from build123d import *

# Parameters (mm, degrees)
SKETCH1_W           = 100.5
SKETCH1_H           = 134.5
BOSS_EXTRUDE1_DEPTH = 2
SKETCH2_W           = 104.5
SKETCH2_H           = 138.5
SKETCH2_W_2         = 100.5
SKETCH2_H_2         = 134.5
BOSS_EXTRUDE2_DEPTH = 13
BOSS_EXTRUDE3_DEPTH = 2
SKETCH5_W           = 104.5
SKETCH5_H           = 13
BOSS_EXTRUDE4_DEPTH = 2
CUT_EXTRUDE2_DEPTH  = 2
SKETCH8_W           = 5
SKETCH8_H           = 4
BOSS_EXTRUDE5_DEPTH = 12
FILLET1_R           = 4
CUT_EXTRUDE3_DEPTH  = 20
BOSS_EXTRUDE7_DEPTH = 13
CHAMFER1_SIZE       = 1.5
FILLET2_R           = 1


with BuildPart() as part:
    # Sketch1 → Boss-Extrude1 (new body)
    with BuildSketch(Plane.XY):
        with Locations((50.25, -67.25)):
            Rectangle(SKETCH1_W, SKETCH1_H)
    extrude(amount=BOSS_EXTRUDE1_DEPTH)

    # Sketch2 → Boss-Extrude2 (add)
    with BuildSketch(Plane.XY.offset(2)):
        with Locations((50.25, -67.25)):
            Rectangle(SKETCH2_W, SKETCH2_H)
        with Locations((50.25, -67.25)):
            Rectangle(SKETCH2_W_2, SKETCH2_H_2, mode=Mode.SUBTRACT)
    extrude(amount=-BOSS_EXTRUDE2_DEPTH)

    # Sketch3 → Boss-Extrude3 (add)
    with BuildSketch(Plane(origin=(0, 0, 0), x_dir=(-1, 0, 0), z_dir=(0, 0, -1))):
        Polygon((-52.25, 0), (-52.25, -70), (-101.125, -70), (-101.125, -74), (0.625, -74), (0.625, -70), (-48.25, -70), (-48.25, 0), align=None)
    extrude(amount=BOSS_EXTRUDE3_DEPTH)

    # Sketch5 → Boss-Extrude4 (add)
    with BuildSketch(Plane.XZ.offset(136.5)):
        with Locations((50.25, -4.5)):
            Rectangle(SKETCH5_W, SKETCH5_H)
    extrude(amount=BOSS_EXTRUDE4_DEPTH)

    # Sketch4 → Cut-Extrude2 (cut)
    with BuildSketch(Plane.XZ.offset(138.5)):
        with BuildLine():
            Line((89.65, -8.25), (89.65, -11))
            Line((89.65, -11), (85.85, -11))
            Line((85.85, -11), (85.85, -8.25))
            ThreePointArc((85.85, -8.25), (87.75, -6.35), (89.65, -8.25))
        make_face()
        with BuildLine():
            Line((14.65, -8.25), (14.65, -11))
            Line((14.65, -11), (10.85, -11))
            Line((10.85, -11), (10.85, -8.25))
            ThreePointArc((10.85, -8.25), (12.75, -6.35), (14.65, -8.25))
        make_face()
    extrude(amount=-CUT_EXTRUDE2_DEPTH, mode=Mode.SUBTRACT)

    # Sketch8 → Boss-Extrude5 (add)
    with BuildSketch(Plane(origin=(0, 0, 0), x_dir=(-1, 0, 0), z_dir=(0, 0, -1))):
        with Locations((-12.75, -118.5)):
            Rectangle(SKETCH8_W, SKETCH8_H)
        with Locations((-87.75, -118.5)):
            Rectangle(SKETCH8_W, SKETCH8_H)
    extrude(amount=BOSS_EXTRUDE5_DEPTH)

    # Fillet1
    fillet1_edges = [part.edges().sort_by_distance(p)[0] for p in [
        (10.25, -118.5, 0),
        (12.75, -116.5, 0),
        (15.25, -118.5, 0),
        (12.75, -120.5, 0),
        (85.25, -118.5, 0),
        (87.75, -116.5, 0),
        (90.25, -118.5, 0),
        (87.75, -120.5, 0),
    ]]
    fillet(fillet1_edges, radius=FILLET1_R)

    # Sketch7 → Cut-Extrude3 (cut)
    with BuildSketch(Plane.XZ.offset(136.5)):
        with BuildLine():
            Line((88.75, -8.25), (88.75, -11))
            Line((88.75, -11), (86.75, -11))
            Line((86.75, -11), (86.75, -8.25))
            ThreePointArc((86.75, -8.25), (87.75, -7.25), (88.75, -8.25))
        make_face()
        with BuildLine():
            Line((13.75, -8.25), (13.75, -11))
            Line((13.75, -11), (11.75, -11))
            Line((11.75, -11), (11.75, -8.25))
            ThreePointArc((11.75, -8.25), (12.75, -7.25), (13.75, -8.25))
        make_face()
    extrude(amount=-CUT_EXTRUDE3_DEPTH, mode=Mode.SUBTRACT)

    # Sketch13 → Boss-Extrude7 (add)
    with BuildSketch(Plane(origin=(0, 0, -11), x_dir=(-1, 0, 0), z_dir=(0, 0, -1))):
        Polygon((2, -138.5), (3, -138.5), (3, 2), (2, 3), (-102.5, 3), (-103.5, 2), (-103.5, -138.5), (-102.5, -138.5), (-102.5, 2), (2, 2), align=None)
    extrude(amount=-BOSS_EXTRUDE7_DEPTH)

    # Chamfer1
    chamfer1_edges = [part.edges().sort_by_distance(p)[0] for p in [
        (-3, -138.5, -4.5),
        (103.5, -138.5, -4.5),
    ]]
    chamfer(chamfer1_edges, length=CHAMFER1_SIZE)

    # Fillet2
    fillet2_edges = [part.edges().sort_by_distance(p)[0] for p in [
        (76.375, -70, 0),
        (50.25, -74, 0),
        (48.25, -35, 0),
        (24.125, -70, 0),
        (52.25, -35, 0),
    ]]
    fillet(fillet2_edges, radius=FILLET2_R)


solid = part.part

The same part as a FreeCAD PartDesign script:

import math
import FreeCAD as App
import Part
import Sketcher
from FreeCAD import Vector


def edges_at(feature, points):
    """Names of the edges that pass closest to the given points."""
    edges = feature.Shape.Edges
    near = lambda p: min(range(len(edges)), key=lambda i: edges[i].distToShape(Part.Vertex(*p))[0])
    return sorted({f"Edge{near(p) + 1}" for p in points})

doc = App.newDocument("Part")
params = doc.addObject("Spreadsheet::Sheet", "Params")
for row, (alias, value) in enumerate([
    ("sketch1_width", "100.5 mm"),
    ("sketch1_height", "134.5 mm"),
    ("pad1_length", "2 mm"),
    ("sketch2_width", "104.5 mm"),
    ("sketch2_width2", "100.5 mm"),
    ("sketch2_height", "138.5 mm"),
    ("sketch2_height2", "134.5 mm"),
    ("pad2_length", "13 mm"),
    ("sketch3_width", "4 mm"),
    ("sketch3_height", "70 mm"),
    ("sketch3_width2", "101.75 mm"),
    ("pad3_length", "2 mm"),
    ("sketch4_height", "13 mm"),
    ("sketch4_width", "104.5 mm"),
    ("pad4_length", "2 mm"),
    ("sketch5_radius", "1.9 mm"),
    ("sketch5_height", "2.75 mm"),
    ("pocket1_length", "2 mm"),
    ("sketch6_width", "5 mm"),
    ("sketch6_height", "4 mm"),
    ("pad5_length", "12 mm"),
    ("fillet_radius", "4 mm"),
    ("sketch7_radius", "1 mm"),
    ("sketch7_height", "2.75 mm"),
    ("pocket2_length", "20 mm"),
    ("sketch8_width", "1 mm"),
    ("sketch8_width2", "104.5 mm"),
    ("sketch8_height", "140.5 mm"),
    ("pad6_length", "13 mm"),
    ("chamfer_size", "1.5 mm"),
    ("fillet2_radius", "1 mm"),
], start=1):
    params.set(f"A{row}", alias)
    params.set(f"B{row}", "=" + value)
    params.setAlias(f"B{row}", alias)

body = doc.addObject("PartDesign::Body", "Body")

sketch1 = body.newObject("Sketcher::SketchObject", "Sketch")
sketch1.AttachmentSupport = (doc.getObject("XY_Plane"), [""])
sketch1.MapMode = "FlatFace"
sketch1.addGeometry([
    Part.LineSegment(Vector(0, 0, 0), Vector(0, -134, 0)),
    Part.LineSegment(Vector(0, -134, 0), Vector(100, -134, 0)),
    Part.LineSegment(Vector(100, -134, 0), Vector(100, 0, 0)),
    Part.LineSegment(Vector(100, 0, 0), Vector(0, 0, 0)),
], False)
sketch1.addConstraint([
    Sketcher.Constraint("Coincident", 0, 2, 1, 1),
    Sketcher.Constraint("Coincident", 1, 2, 2, 1),
    Sketcher.Constraint("Coincident", 2, 2, 3, 1),
    Sketcher.Constraint("Coincident", 3, 2, 0, 1),
    Sketcher.Constraint("Vertical", 0),
    Sketcher.Constraint("Horizontal", 1),
    Sketcher.Constraint("Vertical", 2),
    Sketcher.Constraint("Horizontal", 3),
    Sketcher.Constraint("Coincident", 3, 2, -1, 1),
    Sketcher.Constraint("DistanceX", 1, 1, 1, 2, 100.5),
    Sketcher.Constraint("DistanceY", 0, 2, 0, 1, 134.5),
])
sketch1.setExpression("Constraints[9]", "Params.sketch1_width")
sketch1.setExpression("Constraints[10]", "Params.sketch1_height")
pad1 = body.newObject("PartDesign::Pad", "Pad")
pad1.Profile = sketch1
pad1.setExpression("Length", "Params.pad1_length")

sketch2 = body.newObject("Sketcher::SketchObject", "Sketch001")
sketch2.AttachmentSupport = (doc.getObject("XY_Plane"), [""])
sketch2.MapMode = "FlatFace"
sketch2.AttachmentOffset = App.Placement(Vector(0, 0, 2), App.Rotation())
sketch2.addGeometry([
    Part.LineSegment(Vector(-2, 2, 0), Vector(-2, -136, 0)),
    Part.LineSegment(Vector(-2, -136, 0), Vector(102, -136, 0)),
    Part.LineSegment(Vector(102, -136, 0), Vector(102, 2, 0)),
    Part.LineSegment(Vector(102, 2, 0), Vector(-2, 2, 0)),
    Part.LineSegment(Vector(100, -134, 0), Vector(0, -134, 0)),
    Part.LineSegment(Vector(0, -134, 0), Vector(0, 0, 0)),
    Part.LineSegment(Vector(0, 0, 0), Vector(100, 0, 0)),
    Part.LineSegment(Vector(100, 0, 0), Vector(100, -134, 0)),
], False)
sketch2.addConstraint([
    Sketcher.Constraint("Coincident", 0, 2, 1, 1),
    Sketcher.Constraint("Coincident", 1, 2, 2, 1),
    Sketcher.Constraint("Coincident", 2, 2, 3, 1),
    Sketcher.Constraint("Coincident", 3, 2, 0, 1),
    Sketcher.Constraint("Coincident", 4, 2, 5, 1),
    Sketcher.Constraint("Coincident", 5, 2, 6, 1),
    Sketcher.Constraint("Coincident", 6, 2, 7, 1),
    Sketcher.Constraint("Coincident", 7, 2, 4, 1),
    Sketcher.Constraint("Vertical", 0),
    Sketcher.Constraint("Horizontal", 1),
    Sketcher.Constraint("Vertical", 2),
    Sketcher.Constraint("Horizontal", 3),
    Sketcher.Constraint("Horizontal", 4),
    Sketcher.Constraint("Vertical", 5),
    Sketcher.Constraint("Horizontal", 6),
    Sketcher.Constraint("Vertical", 7),
    Sketcher.Constraint("Coincident", 5, 2, -1, 1),
    Sketcher.Constraint("DistanceX", 1, 1, 1, 2, 104.5),
    Sketcher.Constraint("DistanceX", 4, 2, 4, 1, 100.5),
    Sketcher.Constraint("DistanceY", 0, 2, 0, 1, 138.5),
    Sketcher.Constraint("DistanceY", 5, 1, 5, 2, 134.5),
    Sketcher.Constraint("DistanceX", 0, 2, -1, 1, 2.0),
    Sketcher.Constraint("DistanceY", -1, 1, 2, 2, 2.0),
])
sketch2.setExpression("Constraints[17]", "Params.sketch2_width")
sketch2.setExpression("Constraints[18]", "Params.sketch2_width2")
sketch2.setExpression("Constraints[19]", "Params.sketch2_height")
sketch2.setExpression("Constraints[20]", "Params.sketch2_height2")
pad2 = body.newObject("PartDesign::Pad", "Pad001")
pad2.Profile = sketch2
pad2.setExpression("Length", "Params.pad2_length")
pad2.Reversed = True

sketch3 = body.newObject("Sketcher::SketchObject", "Sketch002")
sketch3.AttachmentSupport = (doc.getObject("XY_Plane"), [""])
sketch3.MapMode = "FlatFace"
sketch3.addGeometry([
    Part.LineSegment(Vector(52.2, 0, 0), Vector(52.2, -70, 0)),
    Part.LineSegment(Vector(52.2, -70, 0), Vector(101.1, -70, 0)),
    Part.LineSegment(Vector(101.1, -70, 0), Vector(101.1, -74, 0)),
    Part.LineSegment(Vector(101.1, -74, 0), Vector(-0.6, -74, 0)),
    Part.LineSegment(Vector(-0.6, -74, 0), Vector(-0.6, -70, 0)),
    Part.LineSegment(Vector(-0.6, -70, 0), Vector(48.2, -70, 0)),
    Part.LineSegment(Vector(48.2, -70, 0), Vector(48.2, 0, 0)),
    Part.LineSegment(Vector(48.2, 0, 0), Vector(52.2, 0, 0)),
], False)
sketch3.addConstraint([
    Sketcher.Constraint("Coincident", 0, 2, 1, 1),
    Sketcher.Constraint("Coincident", 1, 2, 2, 1),
    Sketcher.Constraint("Coincident", 2, 2, 3, 1),
    Sketcher.Constraint("Coincident", 3, 2, 4, 1),
    Sketcher.Constraint("Coincident", 4, 2, 5, 1),
    Sketcher.Constraint("Coincident", 5, 2, 6, 1),
    Sketcher.Constraint("Coincident", 6, 2, 7, 1),
    Sketcher.Constraint("Coincident", 7, 2, 0, 1),
    Sketcher.Constraint("Vertical", 0),
    Sketcher.Constraint("Horizontal", 1),
    Sketcher.Constraint("Vertical", 2),
    Sketcher.Constraint("Horizontal", 3),
    Sketcher.Constraint("Vertical", 4),
    Sketcher.Constraint("Horizontal", 5),
    Sketcher.Constraint("Vertical", 6),
    Sketcher.Constraint("Horizontal", 7),
    Sketcher.Constraint("PointOnObject", 6, 2, -1),
    Sketcher.Constraint("Horizontal", 1, 2, 4, 2),
    Sketcher.Constraint("Equal", 1, 5),
    Sketcher.Constraint("Equal", 7, 2),
    Sketcher.Constraint("DistanceX", 7, 1, 7, 2, 4.0),
    Sketcher.Constraint("DistanceY", 0, 2, 0, 1, 70.0),
    Sketcher.Constraint("DistanceX", 3, 2, 3, 1, 101.75),
    Sketcher.Constraint("DistanceX", -1, 1, 0, 2, 52.25),
])
sketch3.setExpression("Constraints[20]", "Params.sketch3_width")
sketch3.setExpression("Constraints[21]", "Params.sketch3_height")
sketch3.setExpression("Constraints[22]", "Params.sketch3_width2")
pad3 = body.newObject("PartDesign::Pad", "Pad002")
pad3.Profile = sketch3
pad3.setExpression("Length", "Params.pad3_length")
pad3.Reversed = True

sketch4 = body.newObject("Sketcher::SketchObject", "Sketch003")
sketch4.AttachmentSupport = (doc.getObject("XZ_Plane"), [""])
sketch4.MapMode = "FlatFace"
sketch4.AttachmentOffset = App.Placement(Vector(0, 0, 136.5), App.Rotation())
sketch4.addGeometry([
    Part.LineSegment(Vector(-2, 2, 0), Vector(-2, -11, 0)),
    Part.LineSegment(Vector(-2, -11, 0), Vector(102, -11, 0)),
    Part.LineSegment(Vector(102, -11, 0), Vector(102, 2, 0)),
    Part.LineSegment(Vector(102, 2, 0), Vector(-2, 2, 0)),
], False)
sketch4.addConstraint([
    Sketcher.Constraint("Coincident", 0, 2, 1, 1),
    Sketcher.Constraint("Coincident", 1, 2, 2, 1),
    Sketcher.Constraint("Coincident", 2, 2, 3, 1),
    Sketcher.Constraint("Coincident", 3, 2, 0, 1),
    Sketcher.Constraint("Vertical", 0),
    Sketcher.Constraint("Horizontal", 1),
    Sketcher.Constraint("Vertical", 2),
    Sketcher.Constraint("Horizontal", 3),
    Sketcher.Constraint("DistanceY", 0, 2, 0, 1, 13.0),
    Sketcher.Constraint("DistanceX", 1, 1, 1, 2, 104.5),
    Sketcher.Constraint("DistanceX", 0, 2, -1, 1, 2.0),
    Sketcher.Constraint("DistanceY", 0, 2, -1, 1, 11.0),
])
sketch4.setExpression("Constraints[8]", "Params.sketch4_height")
sketch4.setExpression("Constraints[9]", "Params.sketch4_width")
pad4 = body.newObject("PartDesign::Pad", "Pad003")
pad4.Profile = sketch4
pad4.setExpression("Length", "Params.pad4_length")

sketch5 = body.newObject("Sketcher::SketchObject", "Sketch004")
sketch5.AttachmentSupport = (doc.getObject("XZ_Plane"), [""])
sketch5.MapMode = "FlatFace"
sketch5.AttachmentOffset = App.Placement(Vector(0, 0, 138.5), App.Rotation())
sketch5.addGeometry([
    Part.LineSegment(Vector(89.7, -11, 0), Vector(89.7, -8.2, 0)),
    Part.ArcOfCircle(Part.Circle(Vector(87.8, -8.2, 0), Vector(0, 0, 1), 1.9), math.radians(0), math.radians(180)),
    Part.LineSegment(Vector(85.8, -8.2, 0), Vector(85.8, -11, 0)),
    Part.LineSegment(Vector(85.8, -11, 0), Vector(89.7, -11, 0)),
    Part.LineSegment(Vector(14.7, -11, 0), Vector(14.7, -8.2, 0)),
    Part.ArcOfCircle(Part.Circle(Vector(12.8, -8.2, 0), Vector(0, 0, 1), 1.9), math.radians(0), math.radians(180)),
    Part.LineSegment(Vector(10.8, -8.2, 0), Vector(10.8, -11, 0)),
    Part.LineSegment(Vector(10.8, -11, 0), Vector(14.7, -11, 0)),
], False)
sketch5.addConstraint([
    Sketcher.Constraint("Tangent", 0, 2, 1, 1),
    Sketcher.Constraint("Tangent", 1, 2, 2, 1),
    Sketcher.Constraint("Coincident", 2, 2, 3, 1),
    Sketcher.Constraint("Coincident", 3, 2, 0, 1),
    Sketcher.Constraint("Tangent", 4, 2, 5, 1),
    Sketcher.Constraint("Tangent", 5, 2, 6, 1),
    Sketcher.Constraint("Coincident", 6, 2, 7, 1),
    Sketcher.Constraint("Coincident", 7, 2, 4, 1),
    Sketcher.Constraint("Vertical", 0),
    Sketcher.Constraint("Vertical", 2),
    Sketcher.Constraint("Horizontal", 3),
    Sketcher.Constraint("Vertical", 4),
    Sketcher.Constraint("Vertical", 6),
    Sketcher.Constraint("Horizontal", 7),
    Sketcher.Constraint("Equal", 1, 5),
    Sketcher.Constraint("Horizontal", 1, 3, 5, 3),
    Sketcher.Constraint("Horizontal", 3, 2, 6, 2),
    Sketcher.Constraint("Radius", 1, 1.9),
    Sketcher.Constraint("DistanceY", 2, 2, -1, 1, 11.0),
    Sketcher.Constraint("DistanceX", 5, 3, 1, 3, 75.0),
    Sketcher.Constraint("DistanceY", 0, 1, 0, 2, 2.75),
    Sketcher.Constraint("DistanceX", -1, 1, 1, 3, 87.75),
])
sketch5.setExpression("Constraints[17]", "Params.sketch5_radius")
sketch5.setExpression("Constraints[20]", "Params.sketch5_height")
pocket1 = body.newObject("PartDesign::Pocket", "Pocket")
pocket1.Profile = sketch5
pocket1.setExpression("Length", "Params.pocket1_length")

sketch6 = body.newObject("Sketcher::SketchObject", "Sketch005")
sketch6.AttachmentSupport = (doc.getObject("XY_Plane"), [""])
sketch6.MapMode = "FlatFace"
sketch6.addGeometry([
    Part.LineSegment(Vector(15.2, -116.5, 0), Vector(15.2, -120.5, 0)),
    Part.LineSegment(Vector(15.2, -120.5, 0), Vector(10.2, -120.5, 0)),
    Part.LineSegment(Vector(10.2, -120.5, 0), Vector(10.2, -116.5, 0)),
    Part.LineSegment(Vector(10.2, -116.5, 0), Vector(15.2, -116.5, 0)),
    Part.LineSegment(Vector(90.2, -116.5, 0), Vector(90.2, -120.5, 0)),
    Part.LineSegment(Vector(90.2, -120.5, 0), Vector(85.2, -120.5, 0)),
    Part.LineSegment(Vector(85.2, -120.5, 0), Vector(85.2, -116.5, 0)),
    Part.LineSegment(Vector(85.2, -116.5, 0), Vector(90.2, -116.5, 0)),
], False)
sketch6.addConstraint([
    Sketcher.Constraint("Coincident", 0, 2, 1, 1),
    Sketcher.Constraint("Coincident", 1, 2, 2, 1),
    Sketcher.Constraint("Coincident", 2, 2, 3, 1),
    Sketcher.Constraint("Coincident", 3, 2, 0, 1),
    Sketcher.Constraint("Coincident", 4, 2, 5, 1),
    Sketcher.Constraint("Coincident", 5, 2, 6, 1),
    Sketcher.Constraint("Coincident", 6, 2, 7, 1),
    Sketcher.Constraint("Coincident", 7, 2, 4, 1),
    Sketcher.Constraint("Vertical", 0),
    Sketcher.Constraint("Horizontal", 1),
    Sketcher.Constraint("Vertical", 2),
    Sketcher.Constraint("Horizontal", 3),
    Sketcher.Constraint("Vertical", 4),
    Sketcher.Constraint("Horizontal", 5),
    Sketcher.Constraint("Vertical", 6),
    Sketcher.Constraint("Horizontal", 7),
    Sketcher.Constraint("Horizontal", 1, 2, 4, 2),
    Sketcher.Constraint("Horizontal", 3, 2, 6, 2),
    Sketcher.Constraint("Equal", 3, 5),
    Sketcher.Constraint("DistanceX", 1, 2, 1, 1, 5.0),
    Sketcher.Constraint("DistanceY", 0, 2, 0, 1, 4.0),
    Sketcher.Constraint("DistanceX", 0, 2, 4, 2, 75.0),
    Sketcher.Constraint("DistanceY", 0, 2, -1, 1, 120.5),
    Sketcher.Constraint("DistanceX", -1, 1, 0, 2, 15.25),
])
sketch6.setExpression("Constraints[19]", "Params.sketch6_width")
sketch6.setExpression("Constraints[20]", "Params.sketch6_height")
pad5 = body.newObject("PartDesign::Pad", "Pad004")
pad5.Profile = sketch6
pad5.setExpression("Length", "Params.pad5_length")
pad5.Reversed = True
doc.recompute()

fillet = body.newObject("PartDesign::Fillet", "Fillet")
fillet.Base = (pad5, edges_at(pad5, [
    (10.25, -118.5, 0),
    (12.75, -116.5, 0),
    (15.25, -118.5, 0),
    (12.75, -120.5, 0),
    (85.25, -118.5, 0),
    (87.75, -116.5, 0),
    (90.25, -118.5, 0),
    (87.75, -120.5, 0),
]))
fillet.setExpression("Radius", "Params.fillet_radius")

sketch7 = body.newObject("Sketcher::SketchObject", "Sketch006")
sketch7.AttachmentSupport = (doc.getObject("XZ_Plane"), [""])
sketch7.MapMode = "FlatFace"
sketch7.AttachmentOffset = App.Placement(Vector(0, 0, 136.5), App.Rotation())
sketch7.addGeometry([
    Part.LineSegment(Vector(88.8, -11, 0), Vector(88.8, -8.2, 0)),
    Part.ArcOfCircle(Part.Circle(Vector(87.8, -8.2, 0), Vector(0, 0, 1), 1), math.radians(0), math.radians(180)),
    Part.LineSegment(Vector(86.8, -8.2, 0), Vector(86.8, -11, 0)),
    Part.LineSegment(Vector(86.8, -11, 0), Vector(88.8, -11, 0)),
    Part.LineSegment(Vector(13.8, -11, 0), Vector(13.8, -8.2, 0)),
    Part.ArcOfCircle(Part.Circle(Vector(12.8, -8.2, 0), Vector(0, 0, 1), 1), math.radians(0), math.radians(180)),
    Part.LineSegment(Vector(11.8, -8.2, 0), Vector(11.8, -11, 0)),
    Part.LineSegment(Vector(11.8, -11, 0), Vector(13.8, -11, 0)),
], False)
sketch7.addConstraint([
    Sketcher.Constraint("Tangent", 0, 2, 1, 1),
    Sketcher.Constraint("Tangent", 1, 2, 2, 1),
    Sketcher.Constraint("Coincident", 2, 2, 3, 1),
    Sketcher.Constraint("Coincident", 3, 2, 0, 1),
    Sketcher.Constraint("Tangent", 4, 2, 5, 1),
    Sketcher.Constraint("Tangent", 5, 2, 6, 1),
    Sketcher.Constraint("Coincident", 6, 2, 7, 1),
    Sketcher.Constraint("Coincident", 7, 2, 4, 1),
    Sketcher.Constraint("Vertical", 0),
    Sketcher.Constraint("Vertical", 2),
    Sketcher.Constraint("Horizontal", 3),
    Sketcher.Constraint("Vertical", 4),
    Sketcher.Constraint("Vertical", 6),
    Sketcher.Constraint("Horizontal", 7),
    Sketcher.Constraint("Equal", 1, 5),
    Sketcher.Constraint("Horizontal", 1, 3, 5, 3),
    Sketcher.Constraint("Horizontal", 3, 2, 6, 2),
    Sketcher.Constraint("Radius", 1, 1.0),
    Sketcher.Constraint("DistanceY", 2, 2, -1, 1, 11.0),
    Sketcher.Constraint("DistanceX", 5, 3, 1, 3, 75.0),
    Sketcher.Constraint("DistanceY", 0, 1, 0, 2, 2.75),
    Sketcher.Constraint("DistanceX", -1, 1, 1, 3, 87.75),
])
sketch7.setExpression("Constraints[17]", "Params.sketch7_radius")
sketch7.setExpression("Constraints[20]", "Params.sketch7_height")
pocket2 = body.newObject("PartDesign::Pocket", "Pocket001")
pocket2.Profile = sketch7
pocket2.setExpression("Length", "Params.pocket2_length")

sketch8 = body.newObject("Sketcher::SketchObject", "Sketch007")
sketch8.AttachmentSupport = (doc.getObject("XY_Plane"), [""])
sketch8.MapMode = "FlatFace"
sketch8.AttachmentOffset = App.Placement(Vector(0, 0, -11), App.Rotation())
sketch8.addGeometry([
    Part.LineSegment(Vector(-2, -138.5, 0), Vector(-3, -138.5, 0)),
    Part.LineSegment(Vector(-3, -138.5, 0), Vector(-3, 2, 0)),
    Part.LineSegment(Vector(-3, 2, 0), Vector(-2, 3, 0)),
    Part.LineSegment(Vector(-2, 3, 0), Vector(102.5, 3, 0)),
    Part.LineSegment(Vector(102.5, 3, 0), Vector(103.5, 2, 0)),
    Part.LineSegment(Vector(103.5, 2, 0), Vector(103.5, -138.5, 0)),
    Part.LineSegment(Vector(103.5, -138.5, 0), Vector(102.5, -138.5, 0)),
    Part.LineSegment(Vector(102.5, -138.5, 0), Vector(102.5, 2, 0)),
    Part.LineSegment(Vector(102.5, 2, 0), Vector(-2, 2, 0)),
    Part.LineSegment(Vector(-2, 2, 0), Vector(-2, -138.5, 0)),
], False)
sketch8.addConstraint([
    Sketcher.Constraint("Coincident", 0, 2, 1, 1),
    Sketcher.Constraint("Coincident", 1, 2, 2, 1),
    Sketcher.Constraint("Coincident", 2, 2, 3, 1),
    Sketcher.Constraint("Coincident", 3, 2, 4, 1),
    Sketcher.Constraint("Coincident", 4, 2, 5, 1),
    Sketcher.Constraint("Coincident", 5, 2, 6, 1),
    Sketcher.Constraint("Coincident", 6, 2, 7, 1),
    Sketcher.Constraint("Coincident", 7, 2, 8, 1),
    Sketcher.Constraint("Coincident", 8, 2, 9, 1),
    Sketcher.Constraint("Coincident", 9, 2, 0, 1),
    Sketcher.Constraint("Horizontal", 0),
    Sketcher.Constraint("Vertical", 1),
    Sketcher.Constraint("Horizontal", 3),
    Sketcher.Constraint("Vertical", 5),
    Sketcher.Constraint("Horizontal", 6),
    Sketcher.Constraint("Vertical", 7),
    Sketcher.Constraint("Horizontal", 8),
    Sketcher.Constraint("Vertical", 9),
    Sketcher.Constraint("Perpendicular", 2, 4),
    Sketcher.Constraint("Horizontal", 1, 2, 4, 2),
    Sketcher.Constraint("Horizontal", 0, 2, 5, 2),
    Sketcher.Constraint("Horizontal", 4, 2, 7, 2),
    Sketcher.Constraint("Vertical", 3, 2, 6, 2),
    Sketcher.Constraint("Vertical", 2, 2, 8, 2),
    Sketcher.Constraint("Equal", 0, 6),
    Sketcher.Constraint("DistanceX", 0, 2, 0, 1, 1.0),
    Sketcher.Constraint("DistanceX", 3, 1, 3, 2, 104.5),
    Sketcher.Constraint("DistanceY", 1, 1, 1, 2, 140.5),
    Sketcher.Constraint("DistanceX", 0, 2, -1, 1, 3.0),
    Sketcher.Constraint("DistanceY", -1, 1, 1, 2, 2.0),
])
sketch8.setExpression("Constraints[25]", "Params.sketch8_width")
sketch8.setExpression("Constraints[26]", "Params.sketch8_width2")
sketch8.setExpression("Constraints[27]", "Params.sketch8_height")
pad6 = body.newObject("PartDesign::Pad", "Pad005")
pad6.Profile = sketch8
pad6.setExpression("Length", "Params.pad6_length")
doc.recompute()

chamfer = body.newObject("PartDesign::Chamfer", "Chamfer")
chamfer.Base = (pad6, edges_at(pad6, [(-3, -138.5, -4.5), (103.5, -138.5, -4.5)]))
chamfer.setExpression("Size", "Params.chamfer_size")
doc.recompute()

fillet2 = body.newObject("PartDesign::Fillet", "Fillet001")
fillet2.Base = (chamfer, edges_at(chamfer, [
    (76.375, -70, 0),
    (50.25, -74, 0),
    (48.25, -35, 0),
    (24.125, -70, 0),
    (52.25, -35, 0),
]))
fillet2.setExpression("Radius", "Params.fillet2_radius")

doc.recompute()
